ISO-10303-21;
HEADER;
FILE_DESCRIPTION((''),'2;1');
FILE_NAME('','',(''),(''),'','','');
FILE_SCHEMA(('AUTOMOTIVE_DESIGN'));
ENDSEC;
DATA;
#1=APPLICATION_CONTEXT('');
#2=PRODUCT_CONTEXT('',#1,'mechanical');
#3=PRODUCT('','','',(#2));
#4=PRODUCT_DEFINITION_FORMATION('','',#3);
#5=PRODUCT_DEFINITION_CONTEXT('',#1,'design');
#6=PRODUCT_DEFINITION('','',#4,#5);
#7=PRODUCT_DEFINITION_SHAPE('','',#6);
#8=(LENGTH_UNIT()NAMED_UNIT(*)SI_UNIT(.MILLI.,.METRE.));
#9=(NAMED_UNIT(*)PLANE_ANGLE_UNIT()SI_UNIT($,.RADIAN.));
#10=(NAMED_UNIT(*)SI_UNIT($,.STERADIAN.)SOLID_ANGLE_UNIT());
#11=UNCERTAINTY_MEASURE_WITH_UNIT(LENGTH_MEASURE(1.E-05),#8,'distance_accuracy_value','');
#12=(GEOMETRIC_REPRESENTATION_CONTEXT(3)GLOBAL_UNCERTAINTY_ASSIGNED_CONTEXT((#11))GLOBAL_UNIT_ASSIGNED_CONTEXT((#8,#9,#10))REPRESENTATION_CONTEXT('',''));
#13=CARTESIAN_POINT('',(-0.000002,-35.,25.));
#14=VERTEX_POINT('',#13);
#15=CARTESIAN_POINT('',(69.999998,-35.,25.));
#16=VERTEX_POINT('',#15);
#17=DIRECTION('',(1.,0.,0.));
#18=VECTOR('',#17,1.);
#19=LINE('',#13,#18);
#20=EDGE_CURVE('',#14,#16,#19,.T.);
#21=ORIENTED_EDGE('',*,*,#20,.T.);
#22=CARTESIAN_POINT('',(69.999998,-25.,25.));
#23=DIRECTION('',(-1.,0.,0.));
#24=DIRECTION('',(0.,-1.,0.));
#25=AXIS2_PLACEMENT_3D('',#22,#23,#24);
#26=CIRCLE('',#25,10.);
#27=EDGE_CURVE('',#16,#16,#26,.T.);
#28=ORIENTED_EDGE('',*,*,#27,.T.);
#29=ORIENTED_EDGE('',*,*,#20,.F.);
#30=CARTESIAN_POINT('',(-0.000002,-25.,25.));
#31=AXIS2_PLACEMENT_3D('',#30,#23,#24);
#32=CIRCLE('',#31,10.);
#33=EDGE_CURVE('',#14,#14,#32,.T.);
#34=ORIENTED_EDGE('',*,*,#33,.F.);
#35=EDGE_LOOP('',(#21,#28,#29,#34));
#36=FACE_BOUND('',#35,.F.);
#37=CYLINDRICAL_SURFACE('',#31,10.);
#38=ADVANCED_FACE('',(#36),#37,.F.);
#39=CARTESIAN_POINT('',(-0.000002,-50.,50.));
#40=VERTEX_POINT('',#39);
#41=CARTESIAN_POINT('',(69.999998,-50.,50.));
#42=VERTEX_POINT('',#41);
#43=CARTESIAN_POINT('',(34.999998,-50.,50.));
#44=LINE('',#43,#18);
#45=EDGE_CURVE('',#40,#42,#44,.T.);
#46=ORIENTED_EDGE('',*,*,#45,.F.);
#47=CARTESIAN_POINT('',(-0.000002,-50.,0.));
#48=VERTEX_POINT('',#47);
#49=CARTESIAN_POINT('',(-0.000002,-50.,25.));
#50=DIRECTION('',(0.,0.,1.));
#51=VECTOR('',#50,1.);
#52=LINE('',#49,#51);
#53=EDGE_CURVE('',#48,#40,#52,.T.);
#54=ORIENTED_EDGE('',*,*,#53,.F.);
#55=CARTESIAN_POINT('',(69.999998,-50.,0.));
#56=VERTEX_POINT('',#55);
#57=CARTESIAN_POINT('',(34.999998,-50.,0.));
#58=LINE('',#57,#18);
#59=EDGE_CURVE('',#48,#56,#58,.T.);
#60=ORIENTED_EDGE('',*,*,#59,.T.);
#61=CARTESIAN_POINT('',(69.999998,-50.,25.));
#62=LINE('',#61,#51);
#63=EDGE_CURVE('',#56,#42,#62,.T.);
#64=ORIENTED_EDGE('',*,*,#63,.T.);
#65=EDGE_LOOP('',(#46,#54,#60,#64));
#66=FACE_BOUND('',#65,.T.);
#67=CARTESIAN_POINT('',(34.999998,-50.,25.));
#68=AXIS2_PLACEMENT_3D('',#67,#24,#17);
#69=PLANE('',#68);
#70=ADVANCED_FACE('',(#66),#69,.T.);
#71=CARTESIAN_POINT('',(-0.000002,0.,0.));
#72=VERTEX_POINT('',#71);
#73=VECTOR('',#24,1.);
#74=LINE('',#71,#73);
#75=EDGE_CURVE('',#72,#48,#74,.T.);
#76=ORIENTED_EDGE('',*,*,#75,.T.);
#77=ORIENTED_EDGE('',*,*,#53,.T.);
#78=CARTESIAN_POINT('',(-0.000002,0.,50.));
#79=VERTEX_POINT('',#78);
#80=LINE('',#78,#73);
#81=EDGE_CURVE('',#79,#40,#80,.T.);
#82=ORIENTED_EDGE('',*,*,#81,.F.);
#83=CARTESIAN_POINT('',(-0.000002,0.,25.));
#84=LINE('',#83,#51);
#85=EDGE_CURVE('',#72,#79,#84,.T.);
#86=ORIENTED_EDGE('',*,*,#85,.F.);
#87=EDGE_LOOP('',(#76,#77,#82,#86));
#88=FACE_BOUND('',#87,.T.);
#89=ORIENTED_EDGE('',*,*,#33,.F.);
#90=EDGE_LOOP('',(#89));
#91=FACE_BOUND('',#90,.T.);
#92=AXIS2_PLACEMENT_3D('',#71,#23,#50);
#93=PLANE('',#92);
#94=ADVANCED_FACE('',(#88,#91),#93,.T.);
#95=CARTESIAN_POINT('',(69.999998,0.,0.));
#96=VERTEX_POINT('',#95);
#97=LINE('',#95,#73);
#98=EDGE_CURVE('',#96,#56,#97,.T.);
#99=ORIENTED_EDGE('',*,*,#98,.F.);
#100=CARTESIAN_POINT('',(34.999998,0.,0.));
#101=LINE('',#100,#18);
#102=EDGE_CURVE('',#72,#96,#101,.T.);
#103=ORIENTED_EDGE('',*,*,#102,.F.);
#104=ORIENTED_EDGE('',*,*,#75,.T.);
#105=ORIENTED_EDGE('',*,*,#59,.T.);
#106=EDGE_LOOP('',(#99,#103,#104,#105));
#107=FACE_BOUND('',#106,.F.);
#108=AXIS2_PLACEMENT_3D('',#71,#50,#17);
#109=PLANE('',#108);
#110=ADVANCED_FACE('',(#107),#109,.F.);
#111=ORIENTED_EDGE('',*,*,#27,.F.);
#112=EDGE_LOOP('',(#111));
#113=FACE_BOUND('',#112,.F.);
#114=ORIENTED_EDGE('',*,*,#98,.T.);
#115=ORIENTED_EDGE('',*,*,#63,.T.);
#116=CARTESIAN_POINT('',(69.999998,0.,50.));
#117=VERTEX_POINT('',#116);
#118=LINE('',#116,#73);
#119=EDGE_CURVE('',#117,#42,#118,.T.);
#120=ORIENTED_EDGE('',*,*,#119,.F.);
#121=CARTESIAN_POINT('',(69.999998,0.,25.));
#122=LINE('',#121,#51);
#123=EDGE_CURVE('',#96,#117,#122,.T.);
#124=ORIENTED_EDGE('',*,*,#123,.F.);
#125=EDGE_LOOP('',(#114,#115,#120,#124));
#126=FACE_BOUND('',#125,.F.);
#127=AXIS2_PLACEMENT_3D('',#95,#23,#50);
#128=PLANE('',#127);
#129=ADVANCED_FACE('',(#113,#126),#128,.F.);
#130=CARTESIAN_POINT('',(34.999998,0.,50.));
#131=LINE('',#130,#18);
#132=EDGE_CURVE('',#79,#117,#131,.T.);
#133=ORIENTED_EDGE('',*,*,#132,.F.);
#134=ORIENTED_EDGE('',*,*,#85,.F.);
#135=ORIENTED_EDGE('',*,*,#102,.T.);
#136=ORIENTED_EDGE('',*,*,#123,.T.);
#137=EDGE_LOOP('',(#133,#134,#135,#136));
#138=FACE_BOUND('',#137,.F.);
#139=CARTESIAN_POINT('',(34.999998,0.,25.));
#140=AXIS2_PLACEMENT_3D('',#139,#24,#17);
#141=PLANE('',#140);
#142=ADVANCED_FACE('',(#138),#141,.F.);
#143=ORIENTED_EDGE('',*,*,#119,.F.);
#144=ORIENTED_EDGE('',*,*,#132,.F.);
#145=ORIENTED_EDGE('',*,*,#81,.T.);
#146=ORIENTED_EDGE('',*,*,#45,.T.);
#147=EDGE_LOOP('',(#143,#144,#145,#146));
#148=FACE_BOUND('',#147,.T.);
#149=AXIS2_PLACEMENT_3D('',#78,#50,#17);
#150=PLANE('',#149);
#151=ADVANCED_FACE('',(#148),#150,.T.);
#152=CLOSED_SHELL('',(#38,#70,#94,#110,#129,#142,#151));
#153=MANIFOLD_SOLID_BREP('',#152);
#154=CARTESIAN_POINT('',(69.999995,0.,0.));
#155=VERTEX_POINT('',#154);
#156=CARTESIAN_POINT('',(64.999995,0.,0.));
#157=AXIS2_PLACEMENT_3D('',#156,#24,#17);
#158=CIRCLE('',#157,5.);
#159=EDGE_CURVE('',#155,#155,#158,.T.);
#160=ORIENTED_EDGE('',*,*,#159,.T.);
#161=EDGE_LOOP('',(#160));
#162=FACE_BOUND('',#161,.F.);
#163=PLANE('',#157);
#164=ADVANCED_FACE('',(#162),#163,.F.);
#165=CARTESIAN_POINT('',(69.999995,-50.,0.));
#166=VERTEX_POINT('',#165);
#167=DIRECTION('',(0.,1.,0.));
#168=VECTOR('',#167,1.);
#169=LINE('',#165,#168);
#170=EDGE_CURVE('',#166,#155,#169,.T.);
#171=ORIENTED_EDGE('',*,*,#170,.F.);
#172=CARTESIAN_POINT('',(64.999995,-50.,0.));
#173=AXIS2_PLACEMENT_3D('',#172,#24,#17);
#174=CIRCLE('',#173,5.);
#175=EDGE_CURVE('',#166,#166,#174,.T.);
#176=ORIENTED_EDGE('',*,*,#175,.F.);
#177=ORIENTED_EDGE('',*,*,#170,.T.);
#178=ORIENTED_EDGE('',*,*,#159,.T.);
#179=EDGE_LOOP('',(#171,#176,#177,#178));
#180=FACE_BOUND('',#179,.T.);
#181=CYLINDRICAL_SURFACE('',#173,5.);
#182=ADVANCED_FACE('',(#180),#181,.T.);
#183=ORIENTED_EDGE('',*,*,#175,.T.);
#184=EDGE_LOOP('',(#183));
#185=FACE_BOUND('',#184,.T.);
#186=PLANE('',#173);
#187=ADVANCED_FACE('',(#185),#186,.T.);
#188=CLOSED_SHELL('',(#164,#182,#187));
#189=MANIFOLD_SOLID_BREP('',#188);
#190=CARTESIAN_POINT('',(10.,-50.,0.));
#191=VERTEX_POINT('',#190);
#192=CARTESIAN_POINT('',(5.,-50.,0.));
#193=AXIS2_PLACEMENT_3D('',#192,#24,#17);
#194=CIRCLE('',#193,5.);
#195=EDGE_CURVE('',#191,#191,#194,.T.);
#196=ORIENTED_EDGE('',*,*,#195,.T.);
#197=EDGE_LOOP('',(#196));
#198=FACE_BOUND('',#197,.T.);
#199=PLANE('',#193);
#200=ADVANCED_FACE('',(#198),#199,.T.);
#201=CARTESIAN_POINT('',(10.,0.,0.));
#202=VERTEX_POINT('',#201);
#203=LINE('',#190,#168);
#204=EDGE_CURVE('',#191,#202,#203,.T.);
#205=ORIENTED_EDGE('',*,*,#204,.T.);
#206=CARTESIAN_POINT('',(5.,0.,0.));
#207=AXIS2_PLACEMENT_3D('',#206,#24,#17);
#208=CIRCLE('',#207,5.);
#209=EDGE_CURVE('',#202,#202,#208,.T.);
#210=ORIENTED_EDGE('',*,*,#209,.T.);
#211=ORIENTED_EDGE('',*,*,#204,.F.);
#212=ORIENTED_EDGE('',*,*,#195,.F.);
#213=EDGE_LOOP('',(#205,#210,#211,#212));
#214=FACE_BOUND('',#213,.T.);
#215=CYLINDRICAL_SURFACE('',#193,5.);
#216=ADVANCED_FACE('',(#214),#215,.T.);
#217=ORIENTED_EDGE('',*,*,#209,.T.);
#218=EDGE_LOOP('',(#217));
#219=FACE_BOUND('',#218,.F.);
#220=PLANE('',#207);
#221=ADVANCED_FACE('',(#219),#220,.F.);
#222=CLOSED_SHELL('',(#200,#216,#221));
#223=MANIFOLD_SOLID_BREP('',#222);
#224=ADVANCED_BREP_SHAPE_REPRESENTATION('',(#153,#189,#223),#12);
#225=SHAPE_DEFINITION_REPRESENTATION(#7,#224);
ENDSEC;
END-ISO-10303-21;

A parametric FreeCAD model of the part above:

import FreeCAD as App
import Part
import Sketcher

V = App.Vector


def add_polygon(sketch, points):
    """Adds a closed chain of lines whose ends are joined by coincident constraints."""
    first, n = sketch.GeometryCount, len(points)
    for a, b in zip(points, points[1:] + points[:1]):
        sketch.addGeometry(Part.LineSegment(App.Vector(*a, 0), App.Vector(*b, 0)), False)
    for i in range(n):
        sketch.addConstraint(Sketcher.Constraint("Coincident", first + i, 2, first + (i + 1) % n, 1))

doc = App.newDocument("Part")
params = doc.addObject("Spreadsheet::Sheet", "Params")
for row, (alias, value) in enumerate([
    ("sketch1_width", "70 mm"),
    ("sketch1_height", "50 mm"),
    ("pad1_length", "50 mm"),
    ("sketch2_diameter", "20 mm"),
    ("sketch3_diameter", "10 mm"),
    ("pad2_length", "50 mm"),
], start=1):
    params.set(f"A{row}", alias)
    params.set(f"B{row}", "=" + value)
    params.setAlias(f"B{row}", alias)

body = doc.addObject("PartDesign::Body", "Body")

# Sketch on XZ plane
sketch1 = body.newObject("Sketcher::SketchObject", "Sketch")
sketch1.AttachmentSupport = (doc.getObject("XZ_Plane"), [""])
sketch1.MapMode = "FlatFace"
add_polygon(sketch1, [(0, 50), (0, 0), (70, 0), (70, 50)])  # lines 0-3
sketch1.addConstraint([
    Sketcher.Constraint("Vertical", 0),
    Sketcher.Constraint("Horizontal", 1),
    Sketcher.Constraint("Vertical", 2),
    Sketcher.Constraint("Horizontal", 3),
    Sketcher.Constraint("Coincident", 0, 2, -1, 1),
    Sketcher.Constraint("DistanceX", 1, 1, 1, 2, 70.0),
    Sketcher.Constraint("DistanceY", 0, 2, 0, 1, 50.0),
])
sketch1.setExpression("Constraints[9]", "Params.sketch1_width")
sketch1.setExpression("Constraints[10]", "Params.sketch1_height")
pad1 = body.newObject("PartDesign::Pad", "Pad")
pad1.Profile = sketch1
pad1.setExpression("Length", "Params.pad1_length")

# Sketch on YZ plane
sketch2 = body.newObject("Sketcher::SketchObject", "Sketch001")
sketch2.AttachmentSupport = (doc.getObject("YZ_Plane"), [""])
sketch2.MapMode = "FlatFace"
sketch2.AttachmentOffset = App.Placement(V(0, 0, -0.000002), App.Rotation())
sketch2.addGeometry(Part.Circle(V(-25, 25, 0), V(0, 0, 1), 10), False)
sketch2.addConstraint([
    Sketcher.Constraint("Diameter", 0, 20.0),
    Sketcher.Constraint("DistanceX", 0, 3, -1, 1, 25.0),
    Sketcher.Constraint("DistanceY", -1, 1, 0, 3, 25.0),
])
sketch2.setExpression("Constraints[0]", "Params.sketch2_diameter")
pocket1 = body.newObject("PartDesign::Pocket", "Pocket")
pocket1.Profile = sketch2
pocket1.Type = "ThroughAll"
pocket1.Reversed = True
body2 = doc.addObject("PartDesign::Body", "Body001")
body2.AllowCompound = True

# Sketch on XZ plane
sketch3 = body2.newObject("Sketcher::SketchObject", "Sketch002")
sketch3.AttachmentSupport = (doc.getObject("XZ_Plane001"), [""])
sketch3.MapMode = "FlatFace"
sketch3.AttachmentOffset = App.Placement(V(0, 0, 50), App.Rotation())
sketch3.addGeometry([
    Part.Circle(V(5, 0, 0), V(0, 0, 1), 5),
    Part.Circle(V(65, 0, 0), V(0, 0, 1), 5),
], False)
sketch3.addConstraint([
    Sketcher.Constraint("Equal", 0, 1),
    Sketcher.Constraint("PointOnObject", 0, 3, -1),
    Sketcher.Constraint("PointOnObject", 1, 3, -1),
    Sketcher.Constraint("Diameter", 0, 10.0),
    Sketcher.Constraint("DistanceX", -1, 1, 0, 3, 5.0),
    Sketcher.Constraint("DistanceX", -1, 1, 1, 3, 64.999995),
])
sketch3.setExpression("Constraints[3]", "Params.sketch3_diameter")
pad2 = body2.newObject("PartDesign::Pad", "Pad001")
pad2.Profile = sketch3
pad2.setExpression("Length", "Params.pad2_length")
pad2.Reversed = True

doc.recompute()
